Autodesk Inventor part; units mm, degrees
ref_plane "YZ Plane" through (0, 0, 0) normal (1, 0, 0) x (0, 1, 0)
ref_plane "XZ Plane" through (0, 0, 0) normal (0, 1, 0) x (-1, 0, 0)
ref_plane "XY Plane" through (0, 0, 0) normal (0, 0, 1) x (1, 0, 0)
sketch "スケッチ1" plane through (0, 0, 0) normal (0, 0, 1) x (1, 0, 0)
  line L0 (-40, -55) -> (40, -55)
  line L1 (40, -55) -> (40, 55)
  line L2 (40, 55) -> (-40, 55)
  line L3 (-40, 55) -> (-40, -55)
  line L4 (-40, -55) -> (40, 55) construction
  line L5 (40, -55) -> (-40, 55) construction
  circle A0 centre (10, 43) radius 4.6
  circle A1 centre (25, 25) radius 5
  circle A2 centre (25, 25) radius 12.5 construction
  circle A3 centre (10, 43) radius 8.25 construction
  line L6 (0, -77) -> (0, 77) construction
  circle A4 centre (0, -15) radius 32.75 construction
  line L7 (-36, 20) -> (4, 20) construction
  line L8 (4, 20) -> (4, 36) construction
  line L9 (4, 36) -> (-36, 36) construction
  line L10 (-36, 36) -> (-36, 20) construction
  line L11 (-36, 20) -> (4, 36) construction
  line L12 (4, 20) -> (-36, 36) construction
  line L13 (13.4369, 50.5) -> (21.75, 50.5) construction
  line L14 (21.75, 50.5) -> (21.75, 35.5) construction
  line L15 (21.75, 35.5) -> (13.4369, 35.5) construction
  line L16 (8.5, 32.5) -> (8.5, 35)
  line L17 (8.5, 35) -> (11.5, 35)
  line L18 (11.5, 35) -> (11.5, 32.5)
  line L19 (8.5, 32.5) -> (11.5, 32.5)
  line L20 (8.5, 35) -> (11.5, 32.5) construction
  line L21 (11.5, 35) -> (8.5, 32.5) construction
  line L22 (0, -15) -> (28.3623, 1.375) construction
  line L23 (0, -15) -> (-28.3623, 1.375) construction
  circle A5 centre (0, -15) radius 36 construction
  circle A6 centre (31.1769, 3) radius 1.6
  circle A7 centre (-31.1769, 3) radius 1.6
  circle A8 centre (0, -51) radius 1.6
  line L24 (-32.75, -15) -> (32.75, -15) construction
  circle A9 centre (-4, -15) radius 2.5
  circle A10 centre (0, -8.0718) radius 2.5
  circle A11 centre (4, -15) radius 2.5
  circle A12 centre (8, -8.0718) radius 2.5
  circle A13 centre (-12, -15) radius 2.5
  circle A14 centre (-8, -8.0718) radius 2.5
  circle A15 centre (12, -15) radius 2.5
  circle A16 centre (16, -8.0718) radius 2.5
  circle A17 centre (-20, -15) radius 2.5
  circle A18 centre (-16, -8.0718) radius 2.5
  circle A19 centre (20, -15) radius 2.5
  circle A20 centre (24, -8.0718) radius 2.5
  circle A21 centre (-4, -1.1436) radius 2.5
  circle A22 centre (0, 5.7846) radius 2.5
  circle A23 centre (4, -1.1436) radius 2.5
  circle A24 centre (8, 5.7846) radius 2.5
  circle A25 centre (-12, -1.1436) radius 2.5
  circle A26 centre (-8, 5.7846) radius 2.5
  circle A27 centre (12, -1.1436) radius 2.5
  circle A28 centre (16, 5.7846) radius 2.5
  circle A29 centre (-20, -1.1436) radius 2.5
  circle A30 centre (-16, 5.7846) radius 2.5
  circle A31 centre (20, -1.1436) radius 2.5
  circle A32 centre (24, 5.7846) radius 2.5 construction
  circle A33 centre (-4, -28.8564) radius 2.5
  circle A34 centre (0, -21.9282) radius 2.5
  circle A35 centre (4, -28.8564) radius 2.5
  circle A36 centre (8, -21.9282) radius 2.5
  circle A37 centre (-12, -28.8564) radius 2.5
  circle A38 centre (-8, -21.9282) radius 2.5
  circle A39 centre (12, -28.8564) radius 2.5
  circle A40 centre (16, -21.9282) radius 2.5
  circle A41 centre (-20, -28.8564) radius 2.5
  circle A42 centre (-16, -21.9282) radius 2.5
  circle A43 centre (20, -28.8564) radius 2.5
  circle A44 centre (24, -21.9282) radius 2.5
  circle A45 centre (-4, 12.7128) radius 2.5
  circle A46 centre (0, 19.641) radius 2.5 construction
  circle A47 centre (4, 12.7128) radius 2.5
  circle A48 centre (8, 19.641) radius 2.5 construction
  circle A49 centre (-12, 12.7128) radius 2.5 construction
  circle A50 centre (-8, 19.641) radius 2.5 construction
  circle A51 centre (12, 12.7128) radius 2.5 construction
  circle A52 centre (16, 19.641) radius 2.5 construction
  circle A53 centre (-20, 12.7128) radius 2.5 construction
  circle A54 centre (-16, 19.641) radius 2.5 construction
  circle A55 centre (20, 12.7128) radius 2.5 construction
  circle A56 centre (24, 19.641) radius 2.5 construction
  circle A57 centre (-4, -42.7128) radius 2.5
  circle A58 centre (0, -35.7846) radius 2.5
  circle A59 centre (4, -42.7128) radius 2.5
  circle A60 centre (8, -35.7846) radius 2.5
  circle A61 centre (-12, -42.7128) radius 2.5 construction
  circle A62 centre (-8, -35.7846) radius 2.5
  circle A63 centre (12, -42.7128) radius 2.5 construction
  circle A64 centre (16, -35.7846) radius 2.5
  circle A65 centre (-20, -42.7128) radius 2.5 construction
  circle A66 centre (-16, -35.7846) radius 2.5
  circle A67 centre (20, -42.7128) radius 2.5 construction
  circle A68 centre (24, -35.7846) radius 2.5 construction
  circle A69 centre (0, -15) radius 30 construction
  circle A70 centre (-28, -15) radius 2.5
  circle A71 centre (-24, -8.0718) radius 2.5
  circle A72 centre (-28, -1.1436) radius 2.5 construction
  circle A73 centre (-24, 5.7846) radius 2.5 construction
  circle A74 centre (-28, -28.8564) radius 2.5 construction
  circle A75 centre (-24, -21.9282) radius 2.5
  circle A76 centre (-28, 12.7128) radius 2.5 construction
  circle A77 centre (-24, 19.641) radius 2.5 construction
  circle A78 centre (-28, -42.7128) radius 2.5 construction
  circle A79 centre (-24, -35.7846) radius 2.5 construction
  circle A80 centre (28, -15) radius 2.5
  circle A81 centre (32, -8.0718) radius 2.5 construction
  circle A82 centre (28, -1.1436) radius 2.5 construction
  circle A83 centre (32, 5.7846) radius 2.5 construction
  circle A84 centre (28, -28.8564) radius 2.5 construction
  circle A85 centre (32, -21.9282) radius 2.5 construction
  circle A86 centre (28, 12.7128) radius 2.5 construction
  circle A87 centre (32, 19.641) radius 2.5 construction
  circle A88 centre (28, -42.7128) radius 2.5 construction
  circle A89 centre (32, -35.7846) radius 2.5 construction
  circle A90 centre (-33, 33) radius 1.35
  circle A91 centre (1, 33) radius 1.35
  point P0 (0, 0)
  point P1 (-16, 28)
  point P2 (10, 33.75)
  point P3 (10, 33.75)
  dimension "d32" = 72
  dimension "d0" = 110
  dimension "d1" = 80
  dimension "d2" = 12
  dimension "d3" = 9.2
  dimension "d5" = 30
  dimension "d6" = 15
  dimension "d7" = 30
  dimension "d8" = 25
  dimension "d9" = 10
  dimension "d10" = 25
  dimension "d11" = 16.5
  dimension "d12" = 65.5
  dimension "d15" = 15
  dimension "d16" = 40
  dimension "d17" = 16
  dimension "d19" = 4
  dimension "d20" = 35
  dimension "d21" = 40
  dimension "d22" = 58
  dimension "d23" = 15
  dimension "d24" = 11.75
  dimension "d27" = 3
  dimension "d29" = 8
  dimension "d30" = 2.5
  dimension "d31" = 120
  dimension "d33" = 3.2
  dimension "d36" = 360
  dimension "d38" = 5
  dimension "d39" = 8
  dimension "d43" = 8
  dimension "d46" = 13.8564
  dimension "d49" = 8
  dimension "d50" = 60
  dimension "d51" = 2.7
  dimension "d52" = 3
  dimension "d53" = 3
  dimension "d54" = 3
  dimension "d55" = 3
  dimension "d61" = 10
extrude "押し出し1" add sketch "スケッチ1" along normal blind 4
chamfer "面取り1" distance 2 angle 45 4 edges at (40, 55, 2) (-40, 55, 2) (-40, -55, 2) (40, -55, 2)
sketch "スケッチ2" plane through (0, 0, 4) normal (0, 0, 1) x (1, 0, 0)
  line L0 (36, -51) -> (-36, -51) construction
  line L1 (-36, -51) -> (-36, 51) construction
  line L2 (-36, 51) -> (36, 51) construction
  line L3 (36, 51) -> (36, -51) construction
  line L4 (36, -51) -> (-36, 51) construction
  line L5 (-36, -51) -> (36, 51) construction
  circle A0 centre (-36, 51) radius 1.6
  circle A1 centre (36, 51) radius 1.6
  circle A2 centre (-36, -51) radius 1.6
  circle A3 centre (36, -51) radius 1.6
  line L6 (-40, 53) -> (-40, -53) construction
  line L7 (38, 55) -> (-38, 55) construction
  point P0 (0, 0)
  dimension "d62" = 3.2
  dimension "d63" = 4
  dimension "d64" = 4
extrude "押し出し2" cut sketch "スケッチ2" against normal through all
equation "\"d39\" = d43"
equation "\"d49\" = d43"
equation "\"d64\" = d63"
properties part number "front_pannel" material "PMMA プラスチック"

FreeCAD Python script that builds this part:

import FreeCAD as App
import Part
import Sketcher
from FreeCAD import Vector


def edges_at(feature, points):
    """Names of the edges that pass closest to the given points."""
    edges = feature.Shape.Edges
    near = lambda p: min(range(len(edges)), key=lambda i: edges[i].distToShape(Part.Vertex(*p))[0])
    return sorted({f"Edge{near(p) + 1}" for p in points})


def add_polygon(sketch, points):
    """Adds a closed chain of lines whose ends are joined by coincident constraints."""
    first, n = sketch.GeometryCount, len(points)
    for a, b in zip(points, points[1:] + points[:1]):
        sketch.addGeometry(Part.LineSegment(App.Vector(*a, 0), App.Vector(*b, 0)), False)
    for i in range(n):
        sketch.addConstraint(Sketcher.Constraint("Coincident", first + i, 2, first + (i + 1) % n, 1))

doc = App.newDocument("Part")
body = doc.addObject("PartDesign::Body", "Body")

# Sketch on XY plane
sketch1 = body.newObject("Sketcher::SketchObject", "Sketch")
sketch1.AttachmentSupport = (doc.getObject("XY_Plane"), [""])
sketch1.MapMode = "FlatFace"
add_polygon(sketch1, [(-40, 55), (-40, -55), (40, -55), (40, 55)])  # lines 0-3
sketch1.addGeometry(Part.Circle(Vector(-4, -42.7, 0), Vector(0, 0, 1), 2.5), False)  # 4
sketch1.addGeometry(Part.Circle(Vector(-16, -35.8, 0), Vector(0, 0, 1), 2.5), False)  # 5
sketch1.addGeometry(Part.Circle(Vector(-20, -28.9, 0), Vector(0, 0, 1), 2.5), False)  # 6
sketch1.addGeometry(Part.Circle(Vector(-12, -28.9, 0), Vector(0, 0, 1), 2.5), False)  # 7
sketch1.addGeometry(Part.Circle(Vector(-8, -35.8, 0), Vector(0, 0, 1), 2.5), False)  # 8
sketch1.addGeometry(Part.Circle(Vector(-4, -28.9, 0), Vector(0, 0, 1), 2.5), False)  # 9
sketch1.addGeometry(Part.Circle(Vector(-24, -21.9, 0), Vector(0, 0, 1), 2.5), False)  # 10
sketch1.addGeometry(Part.Circle(Vector(-28, -15, 0), Vector(0, 0, 1), 2.5), False)  # 11
sketch1.addGeometry(Part.Circle(Vector(-24, -8.1, 0), Vector(0, 0, 1), 2.5), False)  # 12
sketch1.addGeometry(Part.Circle(Vector(-16, -21.9, 0), Vector(0, 0, 1), 2.5), False)  # 13
sketch1.addGeometry(Part.Circle(Vector(-20, -15, 0), Vector(0, 0, 1), 2.5), False)  # 14
sketch1.addGeometry(Part.Circle(Vector(-12, -15, 0), Vector(0, 0, 1), 2.5), False)  # 15
sketch1.addGeometry(Part.Circle(Vector(-8, -21.9, 0), Vector(0, 0, 1), 2.5), False)  # 16
sketch1.addGeometry(Part.Circle(Vector(-4, -15, 0), Vector(0, 0, 1), 2.5), False)  # 17
sketch1.addGeometry(Part.Circle(Vector(-16, -8.1, 0), Vector(0, 0, 1), 2.5), False)  # 18
sketch1.addGeometry(Part.Circle(Vector(-20, -1.1, 0), Vector(0, 0, 1), 2.5), False)  # 19
sketch1.addGeometry(Part.Circle(Vector(-12, -1.1, 0), Vector(0, 0, 1), 2.5), False)  # 20
sketch1.addGeometry(Part.Circle(Vector(-8, -8.1, 0), Vector(0, 0, 1), 2.5), False)  # 21
sketch1.addGeometry(Part.Circle(Vector(-4, -1.1, 0), Vector(0, 0, 1), 2.5), False)  # 22
sketch1.addGeometry(Part.Circle(Vector(0, -51, 0), Vector(0, 0, 1), 1.6), False)  # 23
sketch1.addGeometry(Part.Circle(Vector(4, -42.7, 0), Vector(0, 0, 1), 2.5), False)  # 24
sketch1.addGeometry(Part.Circle(Vector(0, -35.8, 0), Vector(0, 0, 1), 2.5), False)  # 25
sketch1.addGeometry(Part.Circle(Vector(8, -35.8, 0), Vector(0, 0, 1), 2.5), False)  # 26
sketch1.addGeometry(Part.Circle(Vector(4, -28.9, 0), Vector(0, 0, 1), 2.5), False)  # 27
sketch1.addGeometry(Part.Circle(Vector(16, -35.8, 0), Vector(0, 0, 1), 2.5), False)  # 28
sketch1.addGeometry(Part.Circle(Vector(12, -28.9, 0), Vector(0, 0, 1), 2.5), False)  # 29
sketch1.addGeometry(Part.Circle(Vector(20, -28.9, 0), Vector(0, 0, 1), 2.5), False)  # 30
sketch1.addGeometry(Part.Circle(Vector(0, -21.9, 0), Vector(0, 0, 1), 2.5), False)  # 31
sketch1.addGeometry(Part.Circle(Vector(8, -21.9, 0), Vector(0, 0, 1), 2.5), False)  # 32
sketch1.addGeometry(Part.Circle(Vector(4, -15, 0), Vector(0, 0, 1), 2.5), False)  # 33
sketch1.addGeometry(Part.Circle(Vector(16, -21.9, 0), Vector(0, 0, 1), 2.5), False)  # 34
sketch1.addGeometry(Part.Circle(Vector(12, -15, 0), Vector(0, 0, 1), 2.5), False)  # 35
sketch1.addGeometry(Part.Circle(Vector(0, -8.1, 0), Vector(0, 0, 1), 2.5), False)  # 36
sketch1.addGeometry(Part.Circle(Vector(8, -8.1, 0), Vector(0, 0, 1), 2.5), False)  # 37
sketch1.addGeometry(Part.Circle(Vector(4, -1.1, 0), Vector(0, 0, 1), 2.5), False)  # 38
sketch1.addGeometry(Part.Circle(Vector(16, -8.1, 0), Vector(0, 0, 1), 2.5), False)  # 39
sketch1.addGeometry(Part.Circle(Vector(12, -1.1, 0), Vector(0, 0, 1), 2.5), False)  # 40
sketch1.addGeometry(Part.Circle(Vector(24, -21.9, 0), Vector(0, 0, 1), 2.5), False)  # 41
sketch1.addGeometry(Part.Circle(Vector(20, -15, 0), Vector(0, 0, 1), 2.5), False)  # 42
sketch1.addGeometry(Part.Circle(Vector(28, -15, 0), Vector(0, 0, 1), 2.5), False)  # 43
sketch1.addGeometry(Part.Circle(Vector(24, -8.1, 0), Vector(0, 0, 1), 2.5), False)  # 44
sketch1.addGeometry(Part.Circle(Vector(20, -1.1, 0), Vector(0, 0, 1), 2.5), False)  # 45
sketch1.addGeometry(Part.Circle(Vector(-31.2, 3, 0), Vector(0, 0, 1), 1.6), False)  # 46
sketch1.addGeometry(Part.Circle(Vector(-16, 5.8, 0), Vector(0, 0, 1), 2.5), False)  # 47
sketch1.addGeometry(Part.Circle(Vector(-8, 5.8, 0), Vector(0, 0, 1), 2.5), False)  # 48
sketch1.addGeometry(Part.Circle(Vector(-4, 12.7, 0), Vector(0, 0, 1), 2.5), False)  # 49
sketch1.addGeometry(Part.Circle(Vector(-33, 33, 0), Vector(0, 0, 1), 1.4), False)  # 50
sketch1.addGeometry(Part.Circle(Vector(0, 5.8, 0), Vector(0, 0, 1), 2.5), False)  # 51
sketch1.addGeometry(Part.Circle(Vector(8, 5.8, 0), Vector(0, 0, 1), 2.5), False)  # 52
sketch1.addGeometry(Part.Circle(Vector(4, 12.7, 0), Vector(0, 0, 1), 2.5), False)  # 53
sketch1.addGeometry(Part.Circle(Vector(16, 5.8, 0), Vector(0, 0, 1), 2.5), False)  # 54
sketch1.addGeometry(Part.Circle(Vector(31.2, 3, 0), Vector(0, 0, 1), 1.6), False)  # 55
sketch1.addGeometry(Part.Circle(Vector(25, 25, 0), Vector(0, 0, 1), 5), False)  # 56
sketch1.addGeometry(Part.Circle(Vector(1, 33, 0), Vector(0, 0, 1), 1.4), False)  # 57
add_polygon(sketch1, [(11.5, 32.5), (8.5, 32.5), (8.5, 35), (11.5, 35)])  # lines 58-61
sketch1.addGeometry(Part.Circle(Vector(10, 43, 0), Vector(0, 0, 1), 4.6), False)  # 62
sketch1.addConstraint(Sketcher.Constraint("Vertical", 0))
sketch1.addConstraint(Sketcher.Constraint("Horizontal", 1))
sketch1.addConstraint(Sketcher.Constraint("Vertical", 2))
sketch1.addConstraint(Sketcher.Constraint("Horizontal", 3))
sketch1.addConstraint(Sketcher.Constraint("Horizontal", 58))
sketch1.addConstraint(Sketcher.Constraint("Vertical", 59))
sketch1.addConstraint(Sketcher.Constraint("Horizontal", 60))
sketch1.addConstraint(Sketcher.Constraint("Vertical", 61))
sketch1.addConstraint(Sketcher.Constraint("Equal", 4, 5))
sketch1.addConstraint(Sketcher.Constraint("Equal", 5, 6))
sketch1.addConstraint(Sketcher.Constraint("Equal", 6, 7))
sketch1.addConstraint(Sketcher.Constraint("Equal", 7, 8))
sketch1.addConstraint(Sketcher.Constraint("Equal", 8, 9))
sketch1.addConstraint(Sketcher.Constraint("Equal", 9, 10))
sketch1.addConstraint(Sketcher.Constraint("Equal", 10, 11))
sketch1.addConstraint(Sketcher.Constraint("Equal", 11, 12))
sketch1.addConstraint(Sketcher.Constraint("Equal", 12, 13))
sketch1.addConstraint(Sketcher.Constraint("Equal", 13, 14))
sketch1.addConstraint(Sketcher.Constraint("Equal", 14, 15))
sketch1.addConstraint(Sketcher.Constraint("Equal", 15, 16))
sketch1.addConstraint(Sketcher.Constraint("Equal", 16, 17))
sketch1.addConstraint(Sketcher.Constraint("Equal", 17, 18))
sketch1.addConstraint(Sketcher.Constraint("Equal", 18, 19))
sketch1.addConstraint(Sketcher.Constraint("Equal", 19, 20))
sketch1.addConstraint(Sketcher.Constraint("Equal", 20, 21))
sketch1.addConstraint(Sketcher.Constraint("Equal", 21, 22))
sketch1.addConstraint(Sketcher.Constraint("Equal", 22, 24))
sketch1.addConstraint(Sketcher.Constraint("Equal", 24, 25))
sketch1.addConstraint(Sketcher.Constraint("Equal", 25, 26))
sketch1.addConstraint(Sketcher.Constraint("Equal", 26, 27))
sketch1.addConstraint(Sketcher.Constraint("Equal", 27, 28))
sketch1.addConstraint(Sketcher.Constraint("Equal", 28, 29))
sketch1.addConstraint(Sketcher.Constraint("Equal", 29, 30))
sketch1.addConstraint(Sketcher.Constraint("Equal", 30, 31))
sketch1.addConstraint(Sketcher.Constraint("Equal", 31, 32))
sketch1.addConstraint(Sketcher.Constraint("Equal", 32, 33))
sketch1.addConstraint(Sketcher.Constraint("Equal", 33, 34))
sketch1.addConstraint(Sketcher.Constraint("Equal", 34, 35))
sketch1.addConstraint(Sketcher.Constraint("Equal", 35, 36))
sketch1.addConstraint(Sketcher.Constraint("Equal", 36, 37))
sketch1.addConstraint(Sketcher.Constraint("Equal", 37, 38))
sketch1.addConstraint(Sketcher.Constraint("Equal", 38, 39))
sketch1.addConstraint(Sketcher.Constraint("Equal", 39, 40))
sketch1.addConstraint(Sketcher.Constraint("Equal", 40, 41))
sketch1.addConstraint(Sketcher.Constraint("Equal", 41, 42))
sketch1.addConstraint(Sketcher.Constraint("Equal", 42, 43))
sketch1.addConstraint(Sketcher.Constraint("Equal", 43, 44))
sketch1.addConstraint(Sketcher.Constraint("Equal", 44, 45))
sketch1.addConstraint(Sketcher.Constraint("Equal", 23, 46))
sketch1.addConstraint(Sketcher.Constraint("Equal", 45, 47))
sketch1.addConstraint(Sketcher.Constraint("Equal", 47, 48))
sketch1.addConstraint(Sketcher.Constraint("Equal", 48, 49))
sketch1.addConstraint(Sketcher.Constraint("Equal", 49, 51))
sketch1.addConstraint(Sketcher.Constraint("Equal", 51, 52))
sketch1.addConstraint(Sketcher.Constraint("Equal", 52, 53))
sketch1.addConstraint(Sketcher.Constraint("Equal", 53, 54))
sketch1.addConstraint(Sketcher.Constraint("Equal", 46, 55))
sketch1.addConstraint(Sketcher.Constraint("Equal", 50, 57))
sketch1.addConstraint(Sketcher.Constraint("Symmetric", 0, 2, 2, 2, -1, 1))
sketch1.addConstraint(Sketcher.Constraint("Symmetric", 4, 3, 24, 3, -2))
sketch1.addConstraint(Sketcher.Constraint("Symmetric", 8, 3, 26, 3, -2))
sketch1.addConstraint(Sketcher.Constraint("Symmetric", 9, 3, 27, 3, -2))
sketch1.addConstraint(Sketcher.Constraint("Symmetric", 5, 3, 28, 3, -2))
sketch1.addConstraint(Sketcher.Constraint("Symmetric", 7, 3, 29, 3, -2))
sketch1.addConstraint(Sketcher.Constraint("Symmetric", 6, 3, 30, 3, -2))
sketch1.addConstraint(Sketcher.Constraint("Symmetric", 16, 3, 32, 3, -2))
sketch1.addConstraint(Sketcher.Constraint("Symmetric", 17, 3, 33, 3, -2))
sketch1.addConstraint(Sketcher.Constraint("Symmetric", 13, 3, 34, 3, -2))
sketch1.addConstraint(Sketcher.Constraint("Symmetric", 15, 3, 35, 3, -2))
sketch1.addConstraint(Sketcher.Constraint("Symmetric", 21, 3, 37, 3, -2))
sketch1.addConstraint(Sketcher.Constraint("Symmetric", 22, 3, 38, 3, -2))
sketch1.addConstraint(Sketcher.Constraint("Symmetric", 18, 3, 39, 3, -2))
sketch1.addConstraint(Sketcher.Constraint("Symmetric", 20, 3, 40, 3, -2))
sketch1.addConstraint(Sketcher.Constraint("Symmetric", 10, 3, 41, 3, -2))
sketch1.addConstraint(Sketcher.Constraint("Symmetric", 14, 3, 42, 3, -2))
sketch1.addConstraint(Sketcher.Constraint("Symmetric", 11, 3, 43, 3, -2))
sketch1.addConstraint(Sketcher.Constraint("Symmetric", 12, 3, 44, 3, -2))
sketch1.addConstraint(Sketcher.Constraint("Symmetric", 19, 3, 45, 3, -2))
sketch1.addConstraint(Sketcher.Constraint("Symmetric", 48, 3, 52, 3, -2))
sketch1.addConstraint(Sketcher.Constraint("Symmetric", 49, 3, 53, 3, -2))
sketch1.addConstraint(Sketcher.Constraint("Symmetric", 47, 3, 54, 3, -2))
sketch1.addConstraint(Sketcher.Constraint("Symmetric", 46, 3, 55, 3, -2))
sketch1.addConstraint(Sketcher.Constraint("PointOnObject", 23, 3, -2))
sketch1.addConstraint(Sketcher.Constraint("PointOnObject", 25, 3, -2))
sketch1.addConstraint(Sketcher.Constraint("PointOnObject", 31, 3, -2))
sketch1.addConstraint(Sketcher.Constraint("PointOnObject", 36, 3, -2))
sketch1.addConstraint(Sketcher.Constraint("PointOnObject", 51, 3, -2))
sketch1.addConstraint(Sketcher.Constraint("Horizontal", 6, 3, 7, 3))
sketch1.addConstraint(Sketcher.Constraint("Horizontal", 5, 3, 8, 3))
sketch1.addConstraint(Sketcher.Constraint("Horizontal", 7, 3, 9, 3))
sketch1.addConstraint(Sketcher.Constraint("Horizontal", 10, 3, 13, 3))
sketch1.addConstraint(Sketcher.Constraint("Horizontal", 11, 3, 14, 3))
sketch1.addConstraint(Sketcher.Constraint("Horizontal", 14, 3, 15, 3))
sketch1.addConstraint(Sketcher.Constraint("Horizontal", 13, 3, 16, 3))
sketch1.addConstraint(Sketcher.Constraint("Horizontal", 15, 3, 17, 3))
sketch1.addConstraint(Sketcher.Constraint("Horizontal", 12, 3, 18, 3))
sketch1.addConstraint(Sketcher.Constraint("Horizontal", 19, 3, 20, 3))
sketch1.addConstraint(Sketcher.Constraint("Horizontal", 18, 3, 21, 3))
sketch1.addConstraint(Sketcher.Constraint("Horizontal", 20, 3, 22, 3))
sketch1.addConstraint(Sketcher.Constraint("Horizontal", 8, 3, 25, 3))
sketch1.addConstraint(Sketcher.Constraint("Horizontal", 16, 3, 31, 3))
sketch1.addConstraint(Sketcher.Constraint("Horizontal", 21, 3, 36, 3))
sketch1.addConstraint(Sketcher.Constraint("Horizontal", 47, 3, 48, 3))
sketch1.addConstraint(Sketcher.Constraint("Horizontal", 48, 3, 51, 3))
sketch1.addConstraint(Sketcher.Constraint("Horizontal", 50, 3, 57, 3))
sketch1.addConstraint(Sketcher.Constraint("Vertical", 4, 3, 9, 3))
sketch1.addConstraint(Sketcher.Constraint("Vertical", 10, 3, 12, 3))
sketch1.addConstraint(Sketcher.Constraint("Vertical", 5, 3, 13, 3))
sketch1.addConstraint(Sketcher.Constraint("Vertical", 6, 3, 14, 3))
sketch1.addConstraint(Sketcher.Constraint("Vertical", 7, 3, 15, 3))
sketch1.addConstraint(Sketcher.Constraint("Vertical", 8, 3, 16, 3))
sketch1.addConstraint(Sketcher.Constraint("Vertical", 9, 3, 17, 3))
sketch1.addConstraint(Sketcher.Constraint("Vertical", 13, 3, 18, 3))
sketch1.addConstraint(Sketcher.Constraint("Vertical", 14, 3, 19, 3))
sketch1.addConstraint(Sketcher.Constraint("Vertical", 15, 3, 20, 3))
sketch1.addConstraint(Sketcher.Constraint("Vertical", 16, 3, 21, 3))
sketch1.addConstraint(Sketcher.Constraint("Vertical", 17, 3, 22, 3))
sketch1.addConstraint(Sketcher.Constraint("Vertical", 18, 3, 47, 3))
sketch1.addConstraint(Sketcher.Constraint("Vertical", 21, 3, 48, 3))
sketch1.addConstraint(Sketcher.Constraint("Vertical", 22, 3, 49, 3))
sketch1.addConstraint(Sketcher.Constraint("Diameter", 4, 5.0))
sketch1.addConstraint(Sketcher.Constraint("Diameter", 56, 10.0))
sketch1.addConstraint(Sketcher.Constraint("Diameter", 23, 3.2))
sketch1.addConstraint(Sketcher.Constraint("Diameter", 50, 2.7))
sketch1.addConstraint(Sketcher.Constraint("Diameter", 62, 9.2))
sketch1.addConstraint(Sketcher.Constraint("DistanceX", 1, 1, 1, 2, 80.0))
sketch1.addConstraint(Sketcher.Constraint("DistanceX", 58, 2, 58, 1, 3.0))
sketch1.addConstraint(Sketcher.Constraint("DistanceY", 0, 2, 0, 1, 110.0))
sketch1.addConstraint(Sketcher.Constraint("DistanceY", 59, 1, 59, 2, 2.5))
sketch1.addConstraint(Sketcher.Constraint("DistanceX", 4, 3, -1, 1, 4.0))
sketch1.addConstraint(Sketcher.Constraint("DistanceX", 5, 3, -1, 1, 16.0))
sketch1.addConstraint(Sketcher.Constraint("DistanceX", 7, 3, -1, 1, 12.0))
sketch1.addConstraint(Sketcher.Constraint("DistanceX", 8, 3, -1, 1, 8.0))
sketch1.addConstraint(Sketcher.Constraint("DistanceY", 11, 3, -1, 1, 15.0))
sketch1.addConstraint(Sketcher.Constraint("DistanceY", -1, 1, 46, 3, 3.0))
sketch1.addConstraint(Sketcher.Constraint("DistanceX", -1, 1, 56, 3, 25.0))
sketch1.addConstraint(Sketcher.Constraint("DistanceY", -1, 1, 56, 3, 25.0))
sketch1.addConstraint(Sketcher.Constraint("DistanceX", -1, 1, 62, 3, 10.0))
sketch1.addConstraint(Sketcher.Constraint("DistanceY", -1, 1, 59, 2, 35.0))
sketch1.addConstraint(Sketcher.Constraint("DistanceX", 6, 3, -1, 1, 20.0))
sketch1.addConstraint(Sketcher.Constraint("DistanceX", 10, 3, -1, 1, 24.0))
sketch1.addConstraint(Sketcher.Constraint("DistanceX", 11, 3, -1, 1, 28.0))
sketch1.addConstraint(Sketcher.Constraint("DistanceY", 23, 3, -1, 1, 51.0))
sketch1.addConstraint(Sketcher.Constraint("DistanceX", 50, 3, -1, 1, 33.0))
sketch1.addConstraint(Sketcher.Constraint("DistanceY", -1, 1, 50, 3, 33.0))
sketch1.addConstraint(Sketcher.Constraint("DistanceX", -1, 1, 57, 3, 1.0))
sketch1.addConstraint(Sketcher.Constraint("DistanceY", -1, 1, 62, 3, 43.0))
sketch1.addConstraint(Sketcher.Constraint("DistanceX", -1, 1, 58, 2, 8.5))
sketch1.addConstraint(Sketcher.Constraint("DistanceX", 46, 3, -1, 1, 31.177))
sketch1.addConstraint(Sketcher.Constraint("DistanceY", 4, 3, -1, 1, 42.7128))
sketch1.addConstraint(Sketcher.Constraint("DistanceY", 5, 3, -1, 1, 35.7846))
sketch1.addConstraint(Sketcher.Constraint("DistanceY", 6, 3, -1, 1, 28.8564))
sketch1.addConstraint(Sketcher.Constraint("DistanceY", 10, 3, -1, 1, 21.9282))
sketch1.addConstraint(Sketcher.Constraint("DistanceY", 12, 3, -1, 1, 8.0718))
sketch1.addConstraint(Sketcher.Constraint("DistanceY", 19, 3, -1, 1, 1.1436))
sketch1.addConstraint(Sketcher.Constraint("DistanceY", -1, 1, 47, 3, 5.7846))
sketch1.addConstraint(Sketcher.Constraint("DistanceY", -1, 1, 49, 3, 12.7128))
pad1 = body.newObject("PartDesign::Pad", "Pad")
pad1.Profile = sketch1
pad1.Length = 4
doc.recompute()

chamfer = body.newObject("PartDesign::Chamfer", "Chamfer")
chamfer.Base = (pad1, edges_at(pad1, [
    (40, 55, 2),
    (-40, 55, 2),
    (-40, -55, 2),
    (40, -55, 2),
]))
chamfer.Size = 2

# Sketch on XY plane
sketch2 = body.newObject("Sketcher::SketchObject", "Sketch001")
sketch2.AttachmentSupport = (doc.getObject("XY_Plane"), [""])
sketch2.MapMode = "FlatFace"
sketch2.AttachmentOffset = App.Placement(Vector(0, 0, 4), App.Rotation())
sketch2.addGeometry(Part.Circle(Vector(-36, 51, 0), Vector(0, 0, 1), 1.6), False)
sketch2.addGeometry(Part.Circle(Vector(36, 51, 0), Vector(0, 0, 1), 1.6), False)
sketch2.addGeometry(Part.Circle(Vector(-36, -51, 0), Vector(0, 0, 1), 1.6), False)
sketch2.addGeometry(Part.Circle(Vector(36, -51, 0), Vector(0, 0, 1), 1.6), False)
sketch2.addConstraint(Sketcher.Constraint("Equal", 0, 1))
sketch2.addConstraint(Sketcher.Constraint("Equal", 1, 2))
sketch2.addConstraint(Sketcher.Constraint("Equal", 2, 3))
sketch2.addConstraint(Sketcher.Constraint("Symmetric", 1, 3, 2, 3, -1, 1))
sketch2.addConstraint(Sketcher.Constraint("Symmetric", 0, 3, 3, 3, -1, 1))
sketch2.addConstraint(Sketcher.Constraint("Symmetric", 0, 3, 1, 3, -2))
sketch2.addConstraint(Sketcher.Constraint("Diameter", 0, 3.2))
sketch2.addConstraint(Sketcher.Constraint("DistanceX", 0, 3, -1, 1, 36.0))
sketch2.addConstraint(Sketcher.Constraint("DistanceY", -1, 1, 0, 3, 51.0))
pocket1 = body.newObject("PartDesign::Pocket", "Pocket")
pocket1.Profile = sketch2
pocket1.Type = "ThroughAll"

doc.recompute()
